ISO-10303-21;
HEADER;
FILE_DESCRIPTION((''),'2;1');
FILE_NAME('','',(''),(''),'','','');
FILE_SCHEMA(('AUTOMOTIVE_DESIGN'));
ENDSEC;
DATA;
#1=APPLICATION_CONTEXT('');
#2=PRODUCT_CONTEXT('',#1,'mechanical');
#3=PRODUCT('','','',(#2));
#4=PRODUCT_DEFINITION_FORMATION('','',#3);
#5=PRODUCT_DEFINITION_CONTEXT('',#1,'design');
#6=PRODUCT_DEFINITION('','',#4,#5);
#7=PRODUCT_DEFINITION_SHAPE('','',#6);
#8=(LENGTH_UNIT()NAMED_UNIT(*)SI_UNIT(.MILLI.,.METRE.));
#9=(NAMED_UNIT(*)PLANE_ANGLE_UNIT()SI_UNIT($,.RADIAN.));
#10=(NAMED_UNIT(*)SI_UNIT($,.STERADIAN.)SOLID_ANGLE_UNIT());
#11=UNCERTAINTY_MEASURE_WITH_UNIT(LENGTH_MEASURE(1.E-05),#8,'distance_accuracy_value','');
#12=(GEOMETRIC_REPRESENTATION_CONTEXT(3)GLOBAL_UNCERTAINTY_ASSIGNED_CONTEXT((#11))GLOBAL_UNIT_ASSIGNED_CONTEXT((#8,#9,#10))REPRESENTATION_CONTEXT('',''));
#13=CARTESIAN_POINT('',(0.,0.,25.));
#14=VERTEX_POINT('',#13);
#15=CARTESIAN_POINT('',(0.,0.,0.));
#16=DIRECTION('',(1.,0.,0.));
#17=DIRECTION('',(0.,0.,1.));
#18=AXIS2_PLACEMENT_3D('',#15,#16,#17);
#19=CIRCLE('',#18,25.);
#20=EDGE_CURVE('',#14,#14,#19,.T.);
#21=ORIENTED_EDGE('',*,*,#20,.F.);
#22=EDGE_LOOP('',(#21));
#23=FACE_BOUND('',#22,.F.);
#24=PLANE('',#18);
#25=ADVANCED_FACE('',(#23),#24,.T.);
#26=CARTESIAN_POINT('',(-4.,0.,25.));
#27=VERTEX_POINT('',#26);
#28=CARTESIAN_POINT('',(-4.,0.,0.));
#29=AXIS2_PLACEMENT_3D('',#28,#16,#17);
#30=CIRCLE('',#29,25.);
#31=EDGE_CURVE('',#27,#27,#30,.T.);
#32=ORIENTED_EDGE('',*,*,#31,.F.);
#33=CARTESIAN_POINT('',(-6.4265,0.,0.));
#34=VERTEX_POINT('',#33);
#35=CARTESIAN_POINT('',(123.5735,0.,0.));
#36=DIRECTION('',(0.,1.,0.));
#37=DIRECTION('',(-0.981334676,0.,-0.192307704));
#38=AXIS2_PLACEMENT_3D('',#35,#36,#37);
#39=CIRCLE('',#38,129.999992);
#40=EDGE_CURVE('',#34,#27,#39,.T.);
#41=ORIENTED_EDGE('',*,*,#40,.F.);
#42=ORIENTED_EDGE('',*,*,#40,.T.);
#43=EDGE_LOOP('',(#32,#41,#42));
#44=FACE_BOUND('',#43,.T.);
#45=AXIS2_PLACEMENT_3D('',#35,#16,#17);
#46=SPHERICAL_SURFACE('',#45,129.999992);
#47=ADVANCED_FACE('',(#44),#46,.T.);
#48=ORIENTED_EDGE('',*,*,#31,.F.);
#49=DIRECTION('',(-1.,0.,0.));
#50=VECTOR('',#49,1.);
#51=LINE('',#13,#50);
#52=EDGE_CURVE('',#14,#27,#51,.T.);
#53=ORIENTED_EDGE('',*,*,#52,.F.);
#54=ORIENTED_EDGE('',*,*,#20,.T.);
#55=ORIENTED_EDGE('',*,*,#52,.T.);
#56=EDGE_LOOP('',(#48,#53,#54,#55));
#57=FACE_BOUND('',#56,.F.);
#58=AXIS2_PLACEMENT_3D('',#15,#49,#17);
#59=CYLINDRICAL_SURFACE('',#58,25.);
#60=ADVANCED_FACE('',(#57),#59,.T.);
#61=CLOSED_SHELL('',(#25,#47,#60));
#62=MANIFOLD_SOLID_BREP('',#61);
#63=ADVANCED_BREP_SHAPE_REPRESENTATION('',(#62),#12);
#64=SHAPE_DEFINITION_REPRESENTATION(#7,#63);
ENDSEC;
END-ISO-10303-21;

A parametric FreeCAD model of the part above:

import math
import FreeCAD as App
import Part
import Sketcher
from FreeCAD import Vector
Q = App.Units.Quantity

doc = App.newDocument("Part")
body = doc.addObject("PartDesign::Body", "Body")

# Sketch on XZ plane
sketch1 = body.newObject("Sketcher::SketchObject", "Sketch")
sketch1.AttachmentSupport = (doc.getObject("XZ_Plane"), [""])
sketch1.MapMode = "FlatFace"
sketch1.addGeometry(Part.LineSegment(Vector(0, 25, 0), Vector(0, 0, 0)), False)
sketch1.addGeometry(Part.LineSegment(Vector(0, 0, 0), Vector(-6.4, 0, 0)), False)
sketch1.addGeometry(Part.ArcOfCircle(Part.Circle(Vector(123.6, 0, 0), Vector(0, 0, 1), 130), math.radians(168.91), math.radians(180)), False)
sketch1.addGeometry(Part.LineSegment(Vector(-4, 25, 0), Vector(0, 25, 0)), False)
sketch1.addConstraint(Sketcher.Constraint("Coincident", 0, 2, 1, 1))
sketch1.addConstraint(Sketcher.Constraint("Coincident", 1, 2, 2, 2))
sketch1.addConstraint(Sketcher.Constraint("Coincident", 2, 1, 3, 1))
sketch1.addConstraint(Sketcher.Constraint("Coincident", 3, 2, 0, 1))
sketch1.addConstraint(Sketcher.Constraint("Vertical", 0))
sketch1.addConstraint(Sketcher.Constraint("Horizontal", 1))
sketch1.addConstraint(Sketcher.Constraint("Horizontal", 3))
sketch1.addConstraint(Sketcher.Constraint("Coincident", 0, 2, -1, 1))
sketch1.addConstraint(Sketcher.Constraint("PointOnObject", 2, 3, -1))
sketch1.addConstraint(Sketcher.Constraint("Radius", 2, Q("130 mm")))
sketch1.addConstraint(Sketcher.Constraint("DistanceX", 3, 1, 3, 2, Q("4 mm")))
sketch1.addConstraint(Sketcher.Constraint("DistanceY", 0, 2, 0, 1, Q("25 mm")))
revolution = body.newObject("PartDesign::Revolution", "Revolution")
revolution.Profile = sketch1
revolution.ReferenceAxis = (sketch1, ["H_Axis"])
revolution.Angle = 360

doc.recompute()
